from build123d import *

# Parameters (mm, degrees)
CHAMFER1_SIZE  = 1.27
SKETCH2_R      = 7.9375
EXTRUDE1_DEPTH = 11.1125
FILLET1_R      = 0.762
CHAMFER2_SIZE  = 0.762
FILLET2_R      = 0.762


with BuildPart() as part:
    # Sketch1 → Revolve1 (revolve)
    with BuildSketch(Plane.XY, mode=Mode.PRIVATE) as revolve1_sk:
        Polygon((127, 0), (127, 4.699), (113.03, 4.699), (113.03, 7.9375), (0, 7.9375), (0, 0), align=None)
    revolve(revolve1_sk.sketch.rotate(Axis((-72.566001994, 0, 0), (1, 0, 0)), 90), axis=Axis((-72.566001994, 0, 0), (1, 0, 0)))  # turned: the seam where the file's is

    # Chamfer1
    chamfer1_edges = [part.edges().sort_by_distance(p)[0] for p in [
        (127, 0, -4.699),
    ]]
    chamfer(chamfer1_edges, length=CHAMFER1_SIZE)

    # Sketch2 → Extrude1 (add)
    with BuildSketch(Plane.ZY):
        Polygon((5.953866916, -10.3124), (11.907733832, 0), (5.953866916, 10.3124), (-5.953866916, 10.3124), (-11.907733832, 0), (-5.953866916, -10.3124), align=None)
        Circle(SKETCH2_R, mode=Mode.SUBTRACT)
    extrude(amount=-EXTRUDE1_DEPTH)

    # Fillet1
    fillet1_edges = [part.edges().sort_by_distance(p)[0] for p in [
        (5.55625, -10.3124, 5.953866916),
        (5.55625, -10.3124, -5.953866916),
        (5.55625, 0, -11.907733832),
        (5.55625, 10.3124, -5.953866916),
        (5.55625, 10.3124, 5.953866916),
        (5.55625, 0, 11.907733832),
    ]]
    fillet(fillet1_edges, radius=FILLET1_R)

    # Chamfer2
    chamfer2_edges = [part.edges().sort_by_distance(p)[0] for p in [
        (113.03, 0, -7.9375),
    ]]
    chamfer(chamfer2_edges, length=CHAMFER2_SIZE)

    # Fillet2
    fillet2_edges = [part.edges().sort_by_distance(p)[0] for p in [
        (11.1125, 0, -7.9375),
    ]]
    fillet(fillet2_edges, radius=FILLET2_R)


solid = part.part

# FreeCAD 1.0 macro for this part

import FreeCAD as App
import Part
import Sketcher
from FreeCAD import Vector
Q = App.Units.Quantity


def edges_at(feature, points):
    """Names of the edges that pass closest to the given points."""
    edges = feature.Shape.Edges
    near = lambda p: min(range(len(edges)), key=lambda i: edges[i].distToShape(Part.Vertex(*p))[0])
    return sorted({f"Edge{near(p) + 1}" for p in points})


def add_polygon(sketch, points):
    """Adds a closed chain of lines whose ends are joined by coincident constraints."""
    first, n = sketch.GeometryCount, len(points)
    for a, b in zip(points, points[1:] + points[:1]):
        sketch.addGeometry(Part.LineSegment(App.Vector(*a, 0), App.Vector(*b, 0)), False)
    for i in range(n):
        sketch.addConstraint(Sketcher.Constraint("Coincident", first + i, 2, first + (i + 1) % n, 1))

doc = App.newDocument("Part")
body = doc.addObject("PartDesign::Body", "Body")

# Sketch on XY plane
sketch1 = body.newObject("Sketcher::SketchObject", "Sketch")
sketch1.AttachmentSupport = (doc.getObject("XY_Plane"), [""])
sketch1.MapMode = "FlatFace"
add_polygon(sketch1, [(127, 0), (127, 4.699), (113.03, 4.699), (113.03, 7.9375), (0, 7.9375), (0, 0)])  # lines 0-5
sketch1.addConstraint([
    Sketcher.Constraint("Vertical", 0),
    Sketcher.Constraint("Horizontal", 1),
    Sketcher.Constraint("Vertical", 2),
    Sketcher.Constraint("Horizontal", 3),
    Sketcher.Constraint("Vertical", 4),
    Sketcher.Constraint("Horizontal", 5),
    Sketcher.Constraint("Coincident", 4, 2, -1, 1),
    Sketcher.Constraint("DistanceX", 5, 1, 5, 2, Q("5 in")),
    Sketcher.Constraint("DistanceX", 1, 2, 1, 1, Q("0.55 in")),
    Sketcher.Constraint("DistanceY", 0, 1, 0, 2, Q("0.185 in")),
    Sketcher.Constraint("DistanceY", 4, 2, 4, 1, Q("0.3125 in")),
])
revolution = body.newObject("PartDesign::Revolution", "Revolution")
revolution.Profile = sketch1
revolution.ReferenceAxis = (sketch1, ["H_Axis"])
revolution.Angle = 360
doc.recompute()

chamfer = body.newObject("PartDesign::Chamfer", "Chamfer")
chamfer.Base = (revolution, edges_at(revolution, [(127, 0, -4.699)]))
chamfer.Size = Q("0.05 in")

# Sketch on YZ plane
sketch2 = body.newObject("Sketcher::SketchObject", "Sketch001")
sketch2.AttachmentSupport = (doc.getObject("YZ_Plane"), [""])
sketch2.MapMode = "FlatFace"
add_polygon(sketch2, [(-10.3124, 5.953867), (0, 11.907734), (10.3124, 5.953867), (10.3124, -5.953867), (0, -11.907734), (-10.3124, -5.953867)])  # lines 0-5
sketch2.addGeometry(Part.Circle(Vector(0, 0, 0), Vector(0, 0, 1), 7.9375), False)  # 6
sketch2.addConstraint([
    Sketcher.Constraint("Vertical", 2),
    Sketcher.Constraint("Vertical", 5),
    Sketcher.Constraint("Coincident", 6, 3, -1, 1),
    Sketcher.Constraint("Symmetric", 0, 2, 3, 2, -1, 1),
    Sketcher.Constraint("Symmetric", 1, 2, 4, 2, -1, 1),
    Sketcher.Constraint("PointOnObject", 0, 2, -2),
    Sketcher.Constraint("Parallel", 0, 3),
    Sketcher.Constraint("Horizontal", 2, 2, 4, 2),
    Sketcher.Constraint("Diameter", 6, Q("0.625 in")),
    Sketcher.Constraint("Angle", 0, Q("30 deg")),
    Sketcher.Constraint("DistanceX", -1, 1, 1, 2, Q("0.406 in")),
    Sketcher.Constraint("DistanceY", 2, 2, 0, 2, Q("17.861601 mm")),
])
pad1 = body.newObject("PartDesign::Pad", "Pad")
pad1.Profile = sketch2
pad1.Length = Q("0.4375 in")
doc.recompute()

fillet = body.newObject("PartDesign::Fillet", "Fillet")
fillet.Base = (pad1, edges_at(pad1, [
    (5.556, -10.312, 5.954),
    (5.556, -10.312, -5.954),
    (5.556, 0, -11.908),
    (5.556, 10.312, -5.954),
    (5.556, 10.312, 5.954),
    (5.556, 0, 11.908),
]))
fillet.Radius = Q("0.03 in")
doc.recompute()

chamfer2 = body.newObject("PartDesign::Chamfer", "Chamfer001")
chamfer2.Base = (fillet, edges_at(fillet, [(113.03, 0, -7.938)]))
chamfer2.Size = Q("0.03 in")
doc.recompute()

fillet2 = body.newObject("PartDesign::Fillet", "Fillet001")
fillet2.Base = (chamfer2, edges_at(chamfer2, [(11.113, 0, -7.938)]))
fillet2.Radius = Q("0.03 in")

doc.recompute()
